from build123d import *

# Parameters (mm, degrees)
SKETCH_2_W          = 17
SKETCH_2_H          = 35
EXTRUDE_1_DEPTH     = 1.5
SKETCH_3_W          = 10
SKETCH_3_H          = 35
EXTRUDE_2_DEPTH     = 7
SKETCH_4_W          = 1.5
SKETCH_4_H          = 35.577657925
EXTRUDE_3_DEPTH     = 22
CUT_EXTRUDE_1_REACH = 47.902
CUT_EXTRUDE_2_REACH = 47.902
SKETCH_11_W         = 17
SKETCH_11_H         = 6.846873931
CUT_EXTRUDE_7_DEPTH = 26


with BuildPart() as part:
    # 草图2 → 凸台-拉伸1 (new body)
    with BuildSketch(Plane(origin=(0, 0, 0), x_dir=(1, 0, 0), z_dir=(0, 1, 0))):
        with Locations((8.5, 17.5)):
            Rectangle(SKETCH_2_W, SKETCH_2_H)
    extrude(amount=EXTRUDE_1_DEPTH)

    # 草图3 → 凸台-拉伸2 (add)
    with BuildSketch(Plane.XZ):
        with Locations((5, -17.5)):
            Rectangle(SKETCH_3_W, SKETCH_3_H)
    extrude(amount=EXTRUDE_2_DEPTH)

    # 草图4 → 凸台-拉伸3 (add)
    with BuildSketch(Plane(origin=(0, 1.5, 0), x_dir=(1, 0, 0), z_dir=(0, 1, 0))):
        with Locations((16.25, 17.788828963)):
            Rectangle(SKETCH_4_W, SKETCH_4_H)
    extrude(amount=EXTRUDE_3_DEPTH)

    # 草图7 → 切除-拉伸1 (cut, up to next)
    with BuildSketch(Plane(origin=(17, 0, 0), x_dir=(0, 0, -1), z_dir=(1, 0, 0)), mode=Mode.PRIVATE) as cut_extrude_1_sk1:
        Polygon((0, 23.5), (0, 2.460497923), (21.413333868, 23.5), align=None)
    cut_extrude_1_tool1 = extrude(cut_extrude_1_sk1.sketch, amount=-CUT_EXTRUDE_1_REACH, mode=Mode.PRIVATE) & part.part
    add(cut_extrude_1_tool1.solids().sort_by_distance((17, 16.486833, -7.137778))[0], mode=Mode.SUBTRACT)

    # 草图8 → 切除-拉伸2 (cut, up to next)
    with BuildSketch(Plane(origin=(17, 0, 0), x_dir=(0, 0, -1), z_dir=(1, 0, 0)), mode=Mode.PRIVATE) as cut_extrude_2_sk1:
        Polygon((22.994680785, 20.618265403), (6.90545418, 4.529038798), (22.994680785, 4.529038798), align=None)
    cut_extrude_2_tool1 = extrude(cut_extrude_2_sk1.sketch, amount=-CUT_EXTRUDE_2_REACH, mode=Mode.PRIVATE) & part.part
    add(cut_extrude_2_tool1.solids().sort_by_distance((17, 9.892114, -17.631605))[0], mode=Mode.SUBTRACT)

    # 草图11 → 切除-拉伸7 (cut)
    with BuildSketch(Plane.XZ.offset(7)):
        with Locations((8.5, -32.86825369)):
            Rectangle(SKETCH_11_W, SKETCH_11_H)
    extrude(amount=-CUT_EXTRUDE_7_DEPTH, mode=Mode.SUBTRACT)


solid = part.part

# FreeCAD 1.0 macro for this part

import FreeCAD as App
import Part
import Sketcher
from FreeCAD import Vector


def add_polygon(sketch, points):
    """Adds a closed chain of lines whose ends are joined by coincident constraints."""
    first, n = sketch.GeometryCount, len(points)
    for a, b in zip(points, points[1:] + points[:1]):
        sketch.addGeometry(Part.LineSegment(App.Vector(*a, 0), App.Vector(*b, 0)), False)
    for i in range(n):
        sketch.addConstraint(Sketcher.Constraint("Coincident", first + i, 2, first + (i + 1) % n, 1))

doc = App.newDocument("Part")
body = doc.addObject("PartDesign::Body", "Body")

# Sketch on XZ plane
sketch1 = body.newObject("Sketcher::SketchObject", "Sketch")
sketch1.AttachmentSupport = (doc.getObject("XZ_Plane"), [""])
sketch1.MapMode = "FlatFace"
add_polygon(sketch1, [(0, -35), (0, 0), (17, 0), (17, -35)])  # lines 0-3
sketch1.addConstraint(Sketcher.Constraint("Vertical", 0))
sketch1.addConstraint(Sketcher.Constraint("Horizontal", 1))
sketch1.addConstraint(Sketcher.Constraint("Vertical", 2))
sketch1.addConstraint(Sketcher.Constraint("Horizontal", 3))
sketch1.addConstraint(Sketcher.Constraint("Coincident", 0, 2, -1, 1))
sketch1.addConstraint(Sketcher.Constraint("DistanceX", 1, 1, 1, 2, 17.0))
sketch1.addConstraint(Sketcher.Constraint("DistanceY", 0, 1, 0, 2, 35.0))
pad1 = body.newObject("PartDesign::Pad", "Pad")
pad1.Profile = sketch1
pad1.Length = 1.5
pad1.Reversed = True

# Sketch on XZ plane
sketch2 = body.newObject("Sketcher::SketchObject", "Sketch001")
sketch2.AttachmentSupport = (doc.getObject("XZ_Plane"), [""])
sketch2.MapMode = "FlatFace"
add_polygon(sketch2, [(0, 0), (0, -35), (10, -35), (10, 0)])  # lines 0-3
sketch2.addConstraint(Sketcher.Constraint("Vertical", 0))
sketch2.addConstraint(Sketcher.Constraint("Horizontal", 1))
sketch2.addConstraint(Sketcher.Constraint("Vertical", 2))
sketch2.addConstraint(Sketcher.Constraint("Horizontal", 3))
sketch2.addConstraint(Sketcher.Constraint("Coincident", 3, 2, -1, 1))
sketch2.addConstraint(Sketcher.Constraint("DistanceX", 1, 1, 1, 2, 10.0))
sketch2.addConstraint(Sketcher.Constraint("DistanceY", 0, 2, 0, 1, 35.0))
pad2 = body.newObject("PartDesign::Pad", "Pad001")
pad2.Profile = sketch2
pad2.Length = 7

# Sketch on XZ plane
sketch3 = body.newObject("Sketcher::SketchObject", "Sketch002")
sketch3.AttachmentSupport = (doc.getObject("XZ_Plane"), [""])
sketch3.MapMode = "FlatFace"
sketch3.AttachmentOffset = App.Placement(Vector(0, 0, -1.5), App.Rotation())
add_polygon(sketch3, [(15.5, -35.577658), (15.5, 0), (17, 0), (17, -35.577658)])  # lines 0-3
sketch3.addConstraint(Sketcher.Constraint("Vertical", 0))
sketch3.addConstraint(Sketcher.Constraint("Horizontal", 1))
sketch3.addConstraint(Sketcher.Constraint("Vertical", 2))
sketch3.addConstraint(Sketcher.Constraint("Horizontal", 3))
sketch3.addConstraint(Sketcher.Constraint("PointOnObject", 0, 2, -1))
sketch3.addConstraint(Sketcher.Constraint("DistanceX", 1, 1, 1, 2, 1.5))
sketch3.addConstraint(Sketcher.Constraint("DistanceX", -1, 1, 1, 2, 17.0))
sketch3.addConstraint(Sketcher.Constraint("DistanceY", 0, 1, 0, 2, 35.577658))
pad3 = body.newObject("PartDesign::Pad", "Pad002")
pad3.Profile = sketch3
pad3.Length = 22
pad3.Reversed = True

# Sketch on YZ plane
sketch4 = body.newObject("Sketcher::SketchObject", "Sketch003")
sketch4.AttachmentSupport = (doc.getObject("YZ_Plane"), [""])
sketch4.MapMode = "FlatFace"
sketch4.AttachmentOffset = App.Placement(Vector(0, 0, 17), App.Rotation())
add_polygon(sketch4, [(23.5, 0), (2.460498, 0), (23.5, -21.413334)])  # lines 0-2
sketch4.addConstraint(Sketcher.Constraint("Horizontal", 0))
sketch4.addConstraint(Sketcher.Constraint("Vertical", 2))
sketch4.addConstraint(Sketcher.Constraint("PointOnObject", 0, 2, -1))
sketch4.addConstraint(Sketcher.Constraint("DistanceX", -1, 1, 1, 2, 23.5))
sketch4.addConstraint(Sketcher.Constraint("DistanceX", 0, 2, 0, 1, 21.039502))
sketch4.addConstraint(Sketcher.Constraint("DistanceY", 2, 1, 2, 2, 21.413334))
pocket1 = body.newObject("PartDesign::Pocket", "Pocket")
pocket1.Profile = sketch4
pocket1.Type = "UpToFirst"

# Sketch on YZ plane
sketch5 = body.newObject("Sketcher::SketchObject", "Sketch004")
sketch5.AttachmentSupport = (doc.getObject("YZ_Plane"), [""])
sketch5.MapMode = "FlatFace"
sketch5.AttachmentOffset = App.Placement(Vector(0, 0, 17), App.Rotation())
add_polygon(sketch5, [(20.618265, -22.994681), (4.529039, -6.905454), (4.529039, -22.994681)])  # lines 0-2
sketch5.addConstraint(Sketcher.Constraint("Vertical", 1))
sketch5.addConstraint(Sketcher.Constraint("Horizontal", 2))
sketch5.addConstraint(Sketcher.Constraint("Equal", 2, 1))
sketch5.addConstraint(Sketcher.Constraint("DistanceX", 2, 1, 2, 2, 16.089227))
sketch5.addConstraint(Sketcher.Constraint("DistanceX", -1, 1, 0, 2, 4.529039))
sketch5.addConstraint(Sketcher.Constraint("DistanceY", 1, 2, -1, 1, 22.994681))
pocket2 = body.newObject("PartDesign::Pocket", "Pocket001")
pocket2.Profile = sketch5
pocket2.Type = "UpToFirst"

# Sketch on XZ plane
sketch6 = body.newObject("Sketcher::SketchObject", "Sketch005")
sketch6.AttachmentSupport = (doc.getObject("XZ_Plane"), [""])
sketch6.MapMode = "FlatFace"
sketch6.AttachmentOffset = App.Placement(Vector(0, 0, 7), App.Rotation())
add_polygon(sketch6, [(0, -29.444817), (0, -36.291691), (17, -36.291691), (17, -29.444817)])  # lines 0-3
sketch6.addConstraint(Sketcher.Constraint("Vertical", 0))
sketch6.addConstraint(Sketcher.Constraint("Horizontal", 1))
sketch6.addConstraint(Sketcher.Constraint("Vertical", 2))
sketch6.addConstraint(Sketcher.Constraint("Horizontal", 3))
sketch6.addConstraint(Sketcher.Constraint("PointOnObject", 0, 2, -2))
sketch6.addConstraint(Sketcher.Constraint("DistanceX", 1, 1, 1, 2, 17.0))
sketch6.addConstraint(Sketcher.Constraint("DistanceY", 0, 2, 0, 1, 6.846874))
sketch6.addConstraint(Sketcher.Constraint("DistanceY", 0, 2, -1, 1, 36.291691))
pocket3 = body.newObject("PartDesign::Pocket", "Pocket002")
pocket3.Profile = sketch6
pocket3.Length = 26

doc.recompute()
